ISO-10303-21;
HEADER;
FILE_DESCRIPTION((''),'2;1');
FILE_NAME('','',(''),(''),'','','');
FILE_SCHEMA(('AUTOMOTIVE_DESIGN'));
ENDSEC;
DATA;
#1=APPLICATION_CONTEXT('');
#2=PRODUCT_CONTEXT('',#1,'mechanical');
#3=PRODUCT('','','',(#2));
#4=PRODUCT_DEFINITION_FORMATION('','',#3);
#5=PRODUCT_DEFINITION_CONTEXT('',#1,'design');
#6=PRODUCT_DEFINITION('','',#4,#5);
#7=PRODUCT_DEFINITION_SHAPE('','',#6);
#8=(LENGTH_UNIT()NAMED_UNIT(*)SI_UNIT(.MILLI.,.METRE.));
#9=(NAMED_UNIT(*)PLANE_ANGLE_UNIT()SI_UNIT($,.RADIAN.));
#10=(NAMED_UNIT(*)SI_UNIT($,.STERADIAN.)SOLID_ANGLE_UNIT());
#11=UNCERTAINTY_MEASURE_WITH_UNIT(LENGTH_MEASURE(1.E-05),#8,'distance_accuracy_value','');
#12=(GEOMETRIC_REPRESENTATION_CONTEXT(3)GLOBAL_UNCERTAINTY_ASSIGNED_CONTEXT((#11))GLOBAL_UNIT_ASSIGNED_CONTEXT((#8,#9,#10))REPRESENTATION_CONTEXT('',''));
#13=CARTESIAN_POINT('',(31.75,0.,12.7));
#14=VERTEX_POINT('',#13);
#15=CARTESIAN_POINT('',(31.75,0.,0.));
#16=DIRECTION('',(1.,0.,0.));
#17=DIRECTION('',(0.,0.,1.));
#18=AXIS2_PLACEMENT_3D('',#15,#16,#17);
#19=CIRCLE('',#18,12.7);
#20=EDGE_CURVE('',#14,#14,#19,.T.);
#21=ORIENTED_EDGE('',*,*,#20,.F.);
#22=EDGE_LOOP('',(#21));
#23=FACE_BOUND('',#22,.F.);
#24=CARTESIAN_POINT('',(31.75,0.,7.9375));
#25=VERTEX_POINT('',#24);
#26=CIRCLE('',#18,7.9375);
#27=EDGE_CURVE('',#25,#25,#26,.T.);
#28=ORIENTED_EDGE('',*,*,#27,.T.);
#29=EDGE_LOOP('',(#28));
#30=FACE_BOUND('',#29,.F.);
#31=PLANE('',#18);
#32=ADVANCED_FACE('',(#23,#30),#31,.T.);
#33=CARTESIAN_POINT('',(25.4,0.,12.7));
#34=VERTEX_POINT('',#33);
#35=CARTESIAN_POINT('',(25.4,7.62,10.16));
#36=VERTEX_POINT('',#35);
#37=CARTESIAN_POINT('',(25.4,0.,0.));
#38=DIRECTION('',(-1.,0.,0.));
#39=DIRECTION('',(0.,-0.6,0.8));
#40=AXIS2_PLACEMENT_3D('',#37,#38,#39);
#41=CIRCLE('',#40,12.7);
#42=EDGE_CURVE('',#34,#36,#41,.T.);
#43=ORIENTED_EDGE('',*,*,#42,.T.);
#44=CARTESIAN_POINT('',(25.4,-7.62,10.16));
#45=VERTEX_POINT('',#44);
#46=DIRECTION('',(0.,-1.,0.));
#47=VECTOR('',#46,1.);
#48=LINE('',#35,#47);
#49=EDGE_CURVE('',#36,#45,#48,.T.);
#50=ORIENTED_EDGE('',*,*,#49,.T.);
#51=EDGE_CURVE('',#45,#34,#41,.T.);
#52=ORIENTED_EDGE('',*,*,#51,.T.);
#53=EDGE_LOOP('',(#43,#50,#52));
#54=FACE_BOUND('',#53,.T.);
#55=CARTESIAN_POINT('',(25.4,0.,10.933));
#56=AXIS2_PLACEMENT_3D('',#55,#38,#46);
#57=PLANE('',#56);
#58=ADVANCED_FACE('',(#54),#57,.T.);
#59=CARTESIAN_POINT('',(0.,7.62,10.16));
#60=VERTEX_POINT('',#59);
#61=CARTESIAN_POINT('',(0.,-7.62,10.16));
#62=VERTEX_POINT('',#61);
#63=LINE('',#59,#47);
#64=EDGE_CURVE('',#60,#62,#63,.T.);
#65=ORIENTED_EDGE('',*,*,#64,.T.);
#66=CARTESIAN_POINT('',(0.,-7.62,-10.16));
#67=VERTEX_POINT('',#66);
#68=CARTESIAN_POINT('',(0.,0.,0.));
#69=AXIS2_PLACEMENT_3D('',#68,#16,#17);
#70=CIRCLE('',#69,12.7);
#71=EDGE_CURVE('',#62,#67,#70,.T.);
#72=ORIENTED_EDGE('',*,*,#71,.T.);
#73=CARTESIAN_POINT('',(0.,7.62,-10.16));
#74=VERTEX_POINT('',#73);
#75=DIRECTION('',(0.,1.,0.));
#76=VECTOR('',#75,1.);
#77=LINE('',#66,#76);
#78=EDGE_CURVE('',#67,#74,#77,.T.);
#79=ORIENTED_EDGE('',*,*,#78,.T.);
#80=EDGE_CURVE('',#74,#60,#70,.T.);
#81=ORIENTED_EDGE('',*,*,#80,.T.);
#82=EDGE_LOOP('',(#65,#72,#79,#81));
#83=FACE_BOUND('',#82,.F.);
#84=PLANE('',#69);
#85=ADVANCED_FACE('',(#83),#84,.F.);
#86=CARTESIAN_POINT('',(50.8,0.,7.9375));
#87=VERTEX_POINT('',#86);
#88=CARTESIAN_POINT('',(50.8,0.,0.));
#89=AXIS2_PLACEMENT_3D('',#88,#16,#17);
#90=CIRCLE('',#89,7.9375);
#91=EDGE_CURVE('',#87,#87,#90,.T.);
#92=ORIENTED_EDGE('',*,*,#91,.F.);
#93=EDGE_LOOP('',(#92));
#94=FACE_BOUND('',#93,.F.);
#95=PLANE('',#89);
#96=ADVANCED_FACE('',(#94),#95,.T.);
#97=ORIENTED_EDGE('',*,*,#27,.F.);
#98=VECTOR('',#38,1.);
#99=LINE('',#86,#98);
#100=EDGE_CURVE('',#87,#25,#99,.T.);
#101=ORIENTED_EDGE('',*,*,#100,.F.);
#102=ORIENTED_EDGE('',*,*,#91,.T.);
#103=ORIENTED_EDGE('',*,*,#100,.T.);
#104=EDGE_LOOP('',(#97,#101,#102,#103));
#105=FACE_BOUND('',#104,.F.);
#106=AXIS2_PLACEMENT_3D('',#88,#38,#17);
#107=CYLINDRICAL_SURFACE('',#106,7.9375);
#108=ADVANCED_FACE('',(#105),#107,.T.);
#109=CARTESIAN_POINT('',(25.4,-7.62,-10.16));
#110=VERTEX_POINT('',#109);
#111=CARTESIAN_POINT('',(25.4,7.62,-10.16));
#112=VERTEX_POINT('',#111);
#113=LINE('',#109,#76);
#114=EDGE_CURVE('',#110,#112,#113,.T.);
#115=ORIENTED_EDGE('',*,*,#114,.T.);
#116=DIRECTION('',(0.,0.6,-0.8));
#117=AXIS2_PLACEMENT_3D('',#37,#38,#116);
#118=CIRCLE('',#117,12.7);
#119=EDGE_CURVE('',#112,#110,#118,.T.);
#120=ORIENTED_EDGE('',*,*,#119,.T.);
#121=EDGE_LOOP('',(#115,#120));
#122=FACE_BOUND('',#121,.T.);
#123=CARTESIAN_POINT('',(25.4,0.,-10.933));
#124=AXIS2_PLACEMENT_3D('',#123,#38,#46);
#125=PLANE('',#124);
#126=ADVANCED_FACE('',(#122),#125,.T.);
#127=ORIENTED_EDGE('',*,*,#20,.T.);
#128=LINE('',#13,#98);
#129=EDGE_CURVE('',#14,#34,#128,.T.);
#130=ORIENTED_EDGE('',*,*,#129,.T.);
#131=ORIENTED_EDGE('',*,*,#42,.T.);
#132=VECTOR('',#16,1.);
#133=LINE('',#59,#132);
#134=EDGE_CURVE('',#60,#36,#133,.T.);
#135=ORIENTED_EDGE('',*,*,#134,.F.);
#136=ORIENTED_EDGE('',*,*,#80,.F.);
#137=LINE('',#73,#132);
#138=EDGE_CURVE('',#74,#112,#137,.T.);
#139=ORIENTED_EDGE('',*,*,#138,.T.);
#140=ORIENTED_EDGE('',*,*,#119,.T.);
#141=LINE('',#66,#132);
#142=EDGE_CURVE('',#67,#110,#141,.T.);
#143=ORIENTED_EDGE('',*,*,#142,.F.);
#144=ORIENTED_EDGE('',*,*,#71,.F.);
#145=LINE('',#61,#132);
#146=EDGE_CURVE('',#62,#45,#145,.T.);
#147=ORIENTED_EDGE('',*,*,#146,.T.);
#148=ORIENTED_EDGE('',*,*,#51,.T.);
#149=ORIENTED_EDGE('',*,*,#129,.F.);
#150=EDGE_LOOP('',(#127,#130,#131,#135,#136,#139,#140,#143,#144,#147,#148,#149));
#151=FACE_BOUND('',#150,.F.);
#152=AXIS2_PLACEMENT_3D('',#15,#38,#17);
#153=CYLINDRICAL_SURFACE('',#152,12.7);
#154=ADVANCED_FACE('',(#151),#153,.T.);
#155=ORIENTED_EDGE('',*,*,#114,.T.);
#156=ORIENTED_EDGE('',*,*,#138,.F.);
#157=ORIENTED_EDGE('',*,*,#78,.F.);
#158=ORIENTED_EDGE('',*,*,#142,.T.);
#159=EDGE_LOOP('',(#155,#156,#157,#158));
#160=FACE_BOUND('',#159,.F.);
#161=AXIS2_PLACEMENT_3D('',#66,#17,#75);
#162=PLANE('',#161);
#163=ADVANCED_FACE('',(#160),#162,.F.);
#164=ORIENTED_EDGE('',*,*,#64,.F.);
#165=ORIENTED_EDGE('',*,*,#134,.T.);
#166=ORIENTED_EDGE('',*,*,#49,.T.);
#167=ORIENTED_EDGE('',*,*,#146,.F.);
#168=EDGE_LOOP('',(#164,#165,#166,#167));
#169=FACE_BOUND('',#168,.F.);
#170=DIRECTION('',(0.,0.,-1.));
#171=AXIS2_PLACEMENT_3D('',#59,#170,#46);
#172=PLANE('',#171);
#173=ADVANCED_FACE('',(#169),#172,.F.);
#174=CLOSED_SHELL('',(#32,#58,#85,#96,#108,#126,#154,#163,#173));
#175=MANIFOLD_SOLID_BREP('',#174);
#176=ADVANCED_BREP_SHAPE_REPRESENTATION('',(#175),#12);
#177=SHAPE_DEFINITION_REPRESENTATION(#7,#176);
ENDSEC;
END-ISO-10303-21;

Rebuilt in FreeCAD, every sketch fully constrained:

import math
import FreeCAD as App
import Part
import Sketcher
from FreeCAD import Vector
Q = App.Units.Quantity

doc = App.newDocument("Part")
body = doc.addObject("PartDesign::Body", "Body")

sketch1 = body.newObject("Sketcher::SketchObject", "Sketch")
sketch1.AttachmentSupport = (doc.getObject("XZ_Plane"), [""])
sketch1.MapMode = "FlatFace"
sketch1.addGeometry([
    Part.LineSegment(Vector(31.8, 12.7, 0), Vector(0, 12.7, 0)),
    Part.LineSegment(Vector(0, 12.7, 0), Vector(0, 0, 0)),
    Part.LineSegment(Vector(0, 0, 0), Vector(50.8, 0, 0)),
    Part.LineSegment(Vector(50.8, 0, 0), Vector(50.8, 7.9, 0)),
    Part.LineSegment(Vector(50.8, 7.9, 0), Vector(31.8, 7.9, 0)),
    Part.LineSegment(Vector(31.8, 7.9, 0), Vector(31.8, 12.7, 0)),
], False)
sketch1.addConstraint([
    Sketcher.Constraint("Coincident", 0, 2, 1, 1),
    Sketcher.Constraint("Coincident", 1, 2, 2, 1),
    Sketcher.Constraint("Coincident", 2, 2, 3, 1),
    Sketcher.Constraint("Coincident", 3, 2, 4, 1),
    Sketcher.Constraint("Coincident", 4, 2, 5, 1),
    Sketcher.Constraint("Coincident", 5, 2, 0, 1),
    Sketcher.Constraint("Horizontal", 0),
    Sketcher.Constraint("Vertical", 1),
    Sketcher.Constraint("Horizontal", 2),
    Sketcher.Constraint("Vertical", 3),
    Sketcher.Constraint("Horizontal", 4),
    Sketcher.Constraint("Vertical", 5),
    Sketcher.Constraint("Coincident", 1, 2, -1, 1),
    Sketcher.Constraint("DistanceX", 2, 1, 2, 2, Q("2 in")),
    Sketcher.Constraint("DistanceY", 1, 2, 1, 1, Q("0.5 in")),
    Sketcher.Constraint("DistanceX", 0, 2, 0, 1, Q("1.25 in")),
    Sketcher.Constraint("DistanceY", 3, 1, 3, 2, Q("0.3125 in")),
])
revolution = body.newObject("PartDesign::Revolution", "Revolution")
revolution.Profile = sketch1
revolution.ReferenceAxis = (sketch1, ["H_Axis"])
revolution.Angle = 360

sketch2 = body.newObject("Sketcher::SketchObject", "Sketch001")
sketch2.AttachmentSupport = (doc.getObject("YZ_Plane"), [""])
sketch2.MapMode = "FlatFace"
sketch2.addGeometry([
    Part.ArcOfCircle(Part.Circle(Vector(0, 0, 0), Vector(0, 0, 1), 13), math.radians(53), math.radians(127)),
    Part.LineSegment(Vector(8, 10, 0), Vector(-8, 10, 0)),
    Part.LineSegment(Vector(-8, -10, 0), Vector(8, -10, 0)),
    Part.ArcOfCircle(Part.Circle(Vector(0, 0, 0), Vector(0, 0, 1), 13), math.radians(-127), math.radians(-53)),
], False)
sketch2.addConstraint([
    Sketcher.Constraint("Coincident", 0, 1, 1, 1),
    Sketcher.Constraint("Coincident", 1, 2, 0, 2),
    Sketcher.Constraint("Coincident", 2, 1, 3, 1),
    Sketcher.Constraint("Coincident", 3, 2, 2, 2),
    Sketcher.Constraint("Horizontal", 1),
    Sketcher.Constraint("Horizontal", 2),
    Sketcher.Constraint("Coincident", 0, 3, -1, 1),
    Sketcher.Constraint("Coincident", 3, 3, -1, 1),
    Sketcher.Constraint("Equal", 0, 3),
    Sketcher.Constraint("Vertical", 1, 2, 2, 1),
    Sketcher.Constraint("Radius", 0, Q("0.5 in")),
    Sketcher.Constraint("DistanceX", 1, 2, 1, 1, Q("0.6 in")),
])
pocket1 = body.newObject("PartDesign::Pocket", "Pocket")
pocket1.Profile = sketch2
pocket1.Length = Q("1 in")
pocket1.Reversed = True

doc.recompute()
